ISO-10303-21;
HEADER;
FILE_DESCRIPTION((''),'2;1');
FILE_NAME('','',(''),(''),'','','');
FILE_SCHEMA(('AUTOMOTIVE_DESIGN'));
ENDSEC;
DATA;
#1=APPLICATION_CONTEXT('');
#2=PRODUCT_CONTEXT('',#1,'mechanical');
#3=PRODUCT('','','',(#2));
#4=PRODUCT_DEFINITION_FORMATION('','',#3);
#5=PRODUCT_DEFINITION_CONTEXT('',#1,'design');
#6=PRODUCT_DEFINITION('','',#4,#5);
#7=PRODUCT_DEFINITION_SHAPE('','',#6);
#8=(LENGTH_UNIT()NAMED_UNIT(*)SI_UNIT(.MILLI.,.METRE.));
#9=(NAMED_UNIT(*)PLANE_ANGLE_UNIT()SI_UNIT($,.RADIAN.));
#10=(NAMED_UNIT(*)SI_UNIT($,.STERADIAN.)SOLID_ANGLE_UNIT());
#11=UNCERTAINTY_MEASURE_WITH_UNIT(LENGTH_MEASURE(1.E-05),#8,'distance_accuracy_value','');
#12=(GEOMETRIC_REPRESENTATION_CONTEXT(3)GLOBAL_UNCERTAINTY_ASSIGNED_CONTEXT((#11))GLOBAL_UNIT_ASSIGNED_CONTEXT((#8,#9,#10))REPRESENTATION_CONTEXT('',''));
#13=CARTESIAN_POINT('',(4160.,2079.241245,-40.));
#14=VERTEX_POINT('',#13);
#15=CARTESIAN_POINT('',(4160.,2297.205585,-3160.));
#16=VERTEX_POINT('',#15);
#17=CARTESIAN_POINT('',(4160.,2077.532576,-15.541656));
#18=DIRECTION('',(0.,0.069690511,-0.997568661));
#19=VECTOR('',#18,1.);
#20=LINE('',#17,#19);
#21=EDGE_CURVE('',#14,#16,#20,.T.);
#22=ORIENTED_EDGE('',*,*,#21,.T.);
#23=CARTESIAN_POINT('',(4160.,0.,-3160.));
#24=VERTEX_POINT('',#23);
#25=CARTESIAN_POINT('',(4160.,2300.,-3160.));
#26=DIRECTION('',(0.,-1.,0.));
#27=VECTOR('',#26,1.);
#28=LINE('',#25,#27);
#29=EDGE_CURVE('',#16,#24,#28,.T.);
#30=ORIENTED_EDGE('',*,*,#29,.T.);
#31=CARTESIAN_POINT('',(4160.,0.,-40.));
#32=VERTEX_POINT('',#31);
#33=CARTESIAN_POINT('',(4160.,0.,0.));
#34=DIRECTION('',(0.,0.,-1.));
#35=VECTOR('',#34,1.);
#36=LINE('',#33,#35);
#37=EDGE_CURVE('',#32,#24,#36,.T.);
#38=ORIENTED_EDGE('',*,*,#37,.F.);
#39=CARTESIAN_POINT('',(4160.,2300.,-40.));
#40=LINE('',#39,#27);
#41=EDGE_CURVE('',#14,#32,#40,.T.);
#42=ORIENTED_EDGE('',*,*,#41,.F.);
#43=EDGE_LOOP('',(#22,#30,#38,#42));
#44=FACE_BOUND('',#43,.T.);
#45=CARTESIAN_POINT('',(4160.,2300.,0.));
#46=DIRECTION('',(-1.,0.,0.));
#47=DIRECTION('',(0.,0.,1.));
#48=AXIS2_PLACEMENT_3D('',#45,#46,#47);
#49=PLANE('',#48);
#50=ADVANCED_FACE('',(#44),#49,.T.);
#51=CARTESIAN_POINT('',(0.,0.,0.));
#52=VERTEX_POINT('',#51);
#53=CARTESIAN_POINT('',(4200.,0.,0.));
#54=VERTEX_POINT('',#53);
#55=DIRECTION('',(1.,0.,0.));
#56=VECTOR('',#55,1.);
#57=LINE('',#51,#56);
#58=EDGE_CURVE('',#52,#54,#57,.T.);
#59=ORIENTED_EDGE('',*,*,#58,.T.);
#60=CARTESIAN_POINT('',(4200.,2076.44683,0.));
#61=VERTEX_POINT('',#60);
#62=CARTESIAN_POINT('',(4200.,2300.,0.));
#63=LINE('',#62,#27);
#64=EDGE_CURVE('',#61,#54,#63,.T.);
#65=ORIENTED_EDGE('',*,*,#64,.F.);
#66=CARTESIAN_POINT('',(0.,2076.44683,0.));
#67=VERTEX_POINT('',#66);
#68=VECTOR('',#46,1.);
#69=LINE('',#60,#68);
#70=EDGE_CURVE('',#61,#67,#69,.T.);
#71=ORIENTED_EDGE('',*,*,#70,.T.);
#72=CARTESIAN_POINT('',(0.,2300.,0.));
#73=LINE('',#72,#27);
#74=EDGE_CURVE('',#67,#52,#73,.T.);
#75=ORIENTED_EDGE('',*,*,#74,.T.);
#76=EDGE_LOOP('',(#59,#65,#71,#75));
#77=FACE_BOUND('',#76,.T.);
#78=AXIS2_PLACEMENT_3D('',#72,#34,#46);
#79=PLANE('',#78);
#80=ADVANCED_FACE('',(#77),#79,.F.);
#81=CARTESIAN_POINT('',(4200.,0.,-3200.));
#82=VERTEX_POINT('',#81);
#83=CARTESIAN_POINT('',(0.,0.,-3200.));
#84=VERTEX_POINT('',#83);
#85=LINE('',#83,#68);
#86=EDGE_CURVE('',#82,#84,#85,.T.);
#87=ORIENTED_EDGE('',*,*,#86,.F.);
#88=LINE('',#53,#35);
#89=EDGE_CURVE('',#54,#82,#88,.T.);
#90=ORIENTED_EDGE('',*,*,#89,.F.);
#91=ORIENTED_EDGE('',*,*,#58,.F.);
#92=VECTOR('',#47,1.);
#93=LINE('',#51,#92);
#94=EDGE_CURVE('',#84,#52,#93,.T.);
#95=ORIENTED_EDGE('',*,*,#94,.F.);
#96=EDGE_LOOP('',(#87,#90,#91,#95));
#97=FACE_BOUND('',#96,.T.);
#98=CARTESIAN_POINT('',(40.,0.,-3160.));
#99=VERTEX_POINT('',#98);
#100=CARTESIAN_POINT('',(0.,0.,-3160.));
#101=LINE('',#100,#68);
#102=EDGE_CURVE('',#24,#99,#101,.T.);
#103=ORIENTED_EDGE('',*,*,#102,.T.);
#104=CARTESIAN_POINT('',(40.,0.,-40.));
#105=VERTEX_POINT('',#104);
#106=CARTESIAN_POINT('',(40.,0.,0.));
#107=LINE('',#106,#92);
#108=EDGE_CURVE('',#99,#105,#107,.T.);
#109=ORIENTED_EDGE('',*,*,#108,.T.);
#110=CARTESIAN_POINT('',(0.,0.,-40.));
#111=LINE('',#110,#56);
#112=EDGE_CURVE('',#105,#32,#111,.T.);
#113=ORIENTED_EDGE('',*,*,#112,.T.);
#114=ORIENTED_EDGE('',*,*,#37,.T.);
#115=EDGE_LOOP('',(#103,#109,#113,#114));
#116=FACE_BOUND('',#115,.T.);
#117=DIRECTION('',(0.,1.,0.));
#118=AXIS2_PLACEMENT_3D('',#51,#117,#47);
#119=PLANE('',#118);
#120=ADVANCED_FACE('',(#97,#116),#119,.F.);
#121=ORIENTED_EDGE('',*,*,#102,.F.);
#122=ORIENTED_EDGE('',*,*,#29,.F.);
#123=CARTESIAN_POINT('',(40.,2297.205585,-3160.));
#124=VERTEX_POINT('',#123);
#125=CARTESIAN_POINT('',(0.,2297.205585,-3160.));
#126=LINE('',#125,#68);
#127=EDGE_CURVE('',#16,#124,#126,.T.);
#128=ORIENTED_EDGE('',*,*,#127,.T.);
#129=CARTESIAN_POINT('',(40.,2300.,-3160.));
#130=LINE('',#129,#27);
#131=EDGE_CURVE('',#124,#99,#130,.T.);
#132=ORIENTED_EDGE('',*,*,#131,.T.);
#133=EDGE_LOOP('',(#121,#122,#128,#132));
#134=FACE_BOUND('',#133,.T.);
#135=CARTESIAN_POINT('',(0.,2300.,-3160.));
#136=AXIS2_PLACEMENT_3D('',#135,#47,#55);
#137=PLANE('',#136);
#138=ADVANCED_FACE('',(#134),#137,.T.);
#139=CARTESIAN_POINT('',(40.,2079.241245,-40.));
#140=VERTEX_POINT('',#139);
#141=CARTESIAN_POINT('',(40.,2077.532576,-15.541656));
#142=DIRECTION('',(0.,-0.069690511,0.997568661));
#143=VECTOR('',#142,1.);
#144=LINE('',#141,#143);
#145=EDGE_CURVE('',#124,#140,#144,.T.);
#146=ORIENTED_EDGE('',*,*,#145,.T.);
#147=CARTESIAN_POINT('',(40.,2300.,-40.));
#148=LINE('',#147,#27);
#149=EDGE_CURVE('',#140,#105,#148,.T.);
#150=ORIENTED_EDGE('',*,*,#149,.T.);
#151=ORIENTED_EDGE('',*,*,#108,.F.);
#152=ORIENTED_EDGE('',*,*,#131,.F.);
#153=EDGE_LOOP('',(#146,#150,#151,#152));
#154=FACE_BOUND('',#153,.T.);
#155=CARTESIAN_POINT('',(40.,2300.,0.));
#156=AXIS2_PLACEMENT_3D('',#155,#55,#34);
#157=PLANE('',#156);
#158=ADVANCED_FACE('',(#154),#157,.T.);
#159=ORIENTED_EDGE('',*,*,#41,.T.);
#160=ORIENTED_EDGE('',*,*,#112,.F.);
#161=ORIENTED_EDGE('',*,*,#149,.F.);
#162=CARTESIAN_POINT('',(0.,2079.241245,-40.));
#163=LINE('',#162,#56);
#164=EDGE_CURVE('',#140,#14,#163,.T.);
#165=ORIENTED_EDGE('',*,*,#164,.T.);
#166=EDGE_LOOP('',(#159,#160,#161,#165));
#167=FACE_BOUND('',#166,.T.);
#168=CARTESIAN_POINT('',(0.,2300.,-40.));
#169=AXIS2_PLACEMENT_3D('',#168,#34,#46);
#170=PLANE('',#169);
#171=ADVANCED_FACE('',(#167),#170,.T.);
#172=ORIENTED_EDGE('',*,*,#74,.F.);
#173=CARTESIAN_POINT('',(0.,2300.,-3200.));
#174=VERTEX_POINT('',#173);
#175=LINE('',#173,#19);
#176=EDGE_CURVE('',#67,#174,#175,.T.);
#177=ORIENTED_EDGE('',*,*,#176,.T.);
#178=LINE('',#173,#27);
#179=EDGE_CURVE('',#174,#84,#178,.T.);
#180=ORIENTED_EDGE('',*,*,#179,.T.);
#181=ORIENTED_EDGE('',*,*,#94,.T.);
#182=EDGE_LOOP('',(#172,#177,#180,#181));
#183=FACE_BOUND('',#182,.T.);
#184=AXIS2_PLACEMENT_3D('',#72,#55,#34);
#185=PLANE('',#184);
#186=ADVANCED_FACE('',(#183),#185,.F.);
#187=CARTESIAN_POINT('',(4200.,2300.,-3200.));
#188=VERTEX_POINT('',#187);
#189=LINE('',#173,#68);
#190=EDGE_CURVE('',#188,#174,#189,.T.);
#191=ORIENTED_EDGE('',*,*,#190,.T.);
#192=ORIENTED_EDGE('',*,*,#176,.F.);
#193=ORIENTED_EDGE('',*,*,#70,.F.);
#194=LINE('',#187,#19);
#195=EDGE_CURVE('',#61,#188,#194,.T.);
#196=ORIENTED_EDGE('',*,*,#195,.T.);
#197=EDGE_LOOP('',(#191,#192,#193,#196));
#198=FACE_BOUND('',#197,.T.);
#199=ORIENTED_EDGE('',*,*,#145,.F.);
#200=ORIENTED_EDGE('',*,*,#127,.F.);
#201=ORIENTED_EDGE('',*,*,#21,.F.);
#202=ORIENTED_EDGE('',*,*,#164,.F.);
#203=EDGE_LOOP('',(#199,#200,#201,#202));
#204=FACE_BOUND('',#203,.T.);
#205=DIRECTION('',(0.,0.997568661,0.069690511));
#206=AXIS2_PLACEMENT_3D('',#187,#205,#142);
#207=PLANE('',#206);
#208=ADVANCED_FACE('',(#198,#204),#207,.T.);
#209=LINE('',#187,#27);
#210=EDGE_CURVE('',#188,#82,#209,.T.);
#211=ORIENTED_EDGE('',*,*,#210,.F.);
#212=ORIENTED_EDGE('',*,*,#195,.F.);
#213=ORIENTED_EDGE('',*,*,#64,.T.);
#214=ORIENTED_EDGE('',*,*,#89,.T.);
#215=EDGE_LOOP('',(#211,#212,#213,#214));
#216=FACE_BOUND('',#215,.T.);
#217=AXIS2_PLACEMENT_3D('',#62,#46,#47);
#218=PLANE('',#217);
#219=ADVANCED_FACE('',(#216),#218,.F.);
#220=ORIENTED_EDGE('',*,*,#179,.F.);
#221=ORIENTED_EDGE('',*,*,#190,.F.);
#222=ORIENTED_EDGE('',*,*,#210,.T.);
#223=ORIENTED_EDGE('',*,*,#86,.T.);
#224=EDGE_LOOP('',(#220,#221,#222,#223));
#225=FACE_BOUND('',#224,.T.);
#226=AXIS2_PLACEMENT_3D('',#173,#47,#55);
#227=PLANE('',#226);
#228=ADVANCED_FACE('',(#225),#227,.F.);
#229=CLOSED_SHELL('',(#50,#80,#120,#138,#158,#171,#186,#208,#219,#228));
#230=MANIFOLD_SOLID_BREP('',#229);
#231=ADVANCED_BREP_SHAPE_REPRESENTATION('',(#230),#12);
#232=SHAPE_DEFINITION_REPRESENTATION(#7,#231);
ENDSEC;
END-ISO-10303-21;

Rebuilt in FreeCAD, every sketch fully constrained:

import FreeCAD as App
import Part
import Sketcher
from FreeCAD import Vector


def add_polygon(sketch, points):
    """Adds a closed chain of lines whose ends are joined by coincident constraints."""
    first, n = sketch.GeometryCount, len(points)
    for a, b in zip(points, points[1:] + points[:1]):
        sketch.addGeometry(Part.LineSegment(App.Vector(*a, 0), App.Vector(*b, 0)), False)
    for i in range(n):
        sketch.addConstraint(Sketcher.Constraint("Coincident", first + i, 2, first + (i + 1) % n, 1))

doc = App.newDocument("Part")
body = doc.addObject("PartDesign::Body", "Body")

# Sketch on XZ plane
sketch1 = doc.addObject("Sketcher::SketchObject", "Sketch")
body.addObject(sketch1)
sketch1.AttachmentSupport = (doc.XZ_Plane, [""])
sketch1.MapMode = "FlatFace"
add_polygon(sketch1, [(0, -3200), (0, 0), (4200, 0), (4200, -3200)])  # lines 0-3
add_polygon(sketch1, [(4160, -40), (40, -40), (40, -3160), (4160, -3160)])  # lines 4-7
sketch1.addConstraint(Sketcher.Constraint("Vertical", 0))
sketch1.addConstraint(Sketcher.Constraint("Horizontal", 1))
sketch1.addConstraint(Sketcher.Constraint("Vertical", 2))
sketch1.addConstraint(Sketcher.Constraint("Horizontal", 3))
sketch1.addConstraint(Sketcher.Constraint("Horizontal", 4))
sketch1.addConstraint(Sketcher.Constraint("Vertical", 5))
sketch1.addConstraint(Sketcher.Constraint("Horizontal", 6))
sketch1.addConstraint(Sketcher.Constraint("Vertical", 7))
sketch1.addConstraint(Sketcher.Constraint("Coincident", 0, 2, -1, 1))
sketch1.addConstraint(Sketcher.Constraint("DistanceX", 1, 1, 1, 2, 4200.0))
sketch1.addConstraint(Sketcher.Constraint("DistanceX", 4, 2, 4, 1, 4120.0))
sketch1.addConstraint(Sketcher.Constraint("DistanceY", 0, 1, 0, 2, 3200.0))
sketch1.addConstraint(Sketcher.Constraint("DistanceY", 5, 2, 5, 1, 3120.0))
sketch1.addConstraint(Sketcher.Constraint("DistanceX", -1, 1, 4, 2, 40.0))
sketch1.addConstraint(Sketcher.Constraint("DistanceY", 4, 2, -1, 1, 40.0))
pad1 = doc.addObject("PartDesign::Pad", "Pad")
body.addObject(pad1)
pad1.Profile = sketch1
pad1.Length = 2300
pad1.Reversed = True

# Sketch on YZ plane
sketch2 = doc.addObject("Sketcher::SketchObject", "Sketch001")
body.addObject(sketch2)
sketch2.AttachmentSupport = (doc.YZ_Plane, [""])
sketch2.MapMode = "FlatFace"
add_polygon(sketch2, [(2877, -3777), (-577, -3777), (-577, 577), (2877, 577)])  # lines 0-3
add_polygon(sketch2, [(0, -3200), (2300, -3200), (2076, 0), (0, 0)])  # lines 4-7
sketch2.addConstraint(Sketcher.Constraint("Horizontal", 0))
sketch2.addConstraint(Sketcher.Constraint("Vertical", 1))
sketch2.addConstraint(Sketcher.Constraint("Horizontal", 2))
sketch2.addConstraint(Sketcher.Constraint("Vertical", 3))
sketch2.addConstraint(Sketcher.Constraint("Horizontal", 4))
sketch2.addConstraint(Sketcher.Constraint("Horizontal", 6))
sketch2.addConstraint(Sketcher.Constraint("Vertical", 7))
sketch2.addConstraint(Sketcher.Constraint("Coincident", 6, 2, -1, 1))
sketch2.addConstraint(Sketcher.Constraint("DistanceX", 4, 1, 4, 2, 2300.0))
sketch2.addConstraint(Sketcher.Constraint("DistanceY", 7, 2, 7, 1, 3200.0))
sketch2.addConstraint(Sketcher.Constraint("DistanceX", 0, 2, 0, 1, 3453.868))
sketch2.addConstraint(Sketcher.Constraint("DistanceY", 1, 1, 1, 2, 4353.868))
sketch2.addConstraint(Sketcher.Constraint("DistanceX", 0, 2, -1, 1, 576.934))
sketch2.addConstraint(Sketcher.Constraint("DistanceY", 0, 2, -1, 1, 3776.934))
sketch2.addConstraint(Sketcher.Constraint("DistanceX", 6, 2, 6, 1, 2076.44683))
pocket1 = doc.addObject("PartDesign::Pocket", "Pocket")
body.addObject(pocket1)
pocket1.Profile = sketch2
pocket1.Type = "ThroughAll"
pocket1.Reversed = True

doc.recompute()
